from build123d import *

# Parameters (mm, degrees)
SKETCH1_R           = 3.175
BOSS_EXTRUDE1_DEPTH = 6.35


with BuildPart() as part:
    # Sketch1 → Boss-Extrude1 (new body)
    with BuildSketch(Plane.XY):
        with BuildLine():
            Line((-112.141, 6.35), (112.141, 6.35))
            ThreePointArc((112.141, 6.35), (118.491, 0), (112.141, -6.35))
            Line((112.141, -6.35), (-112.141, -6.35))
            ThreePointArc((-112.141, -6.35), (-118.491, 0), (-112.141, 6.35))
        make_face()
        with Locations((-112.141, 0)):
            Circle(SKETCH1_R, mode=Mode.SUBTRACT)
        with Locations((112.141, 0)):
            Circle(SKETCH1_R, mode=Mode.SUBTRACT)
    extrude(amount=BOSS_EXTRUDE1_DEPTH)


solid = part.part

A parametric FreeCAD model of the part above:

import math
import FreeCAD as App
import Part
import Sketcher
Q = App.Units.Quantity

doc = App.newDocument("Part")
body = doc.addObject("PartDesign::Body", "Body")

# Sketch on XY plane
sketch1 = body.newObject("Sketcher::SketchObject", "Sketch")
sketch1.AttachmentSupport = (doc.getObject("XY_Plane"), [""])
sketch1.MapMode = "FlatFace"
sketch1.addGeometry([
    Part.LineSegment(App.Vector(112.141, 6.35, 0), App.Vector(-112.141, 6.35, 0)),  # 0
    Part.ArcOfCircle(Part.Circle(App.Vector(-112.141, 0, 0), App.Vector(0, 0, 1), 6.35), math.radians(90), math.radians(270)),  # 1
    Part.LineSegment(App.Vector(-112.141, -6.35, 0), App.Vector(112.141, -6.35, 0)),  # 2
    Part.ArcOfCircle(Part.Circle(App.Vector(112.141, 0, 0), App.Vector(0, 0, 1), 6.35), math.radians(-90), math.radians(90)),  # 3
    Part.Circle(App.Vector(112.141, 0, 0), App.Vector(0, 0, 1), 3.175),  # 4
    Part.Circle(App.Vector(-112.141, 0, 0), App.Vector(0, 0, 1), 3.175),  # 5
], False)
sketch1.addConstraint([
    Sketcher.Constraint("Tangent", 0, 2, 1, 1),
    Sketcher.Constraint("Tangent", 1, 2, 2, 1),
    Sketcher.Constraint("Tangent", 2, 2, 3, 1),
    Sketcher.Constraint("Tangent", 3, 2, 0, 1),
    Sketcher.Constraint("Horizontal", 0),
    Sketcher.Constraint("Horizontal", 2),
    Sketcher.Constraint("Coincident", 4, 3, 3, 3),
    Sketcher.Constraint("Coincident", 5, 3, 1, 3),
    Sketcher.Constraint("Equal", 4, 5),
    Sketcher.Constraint("Symmetric", 1, 3, 3, 3, -1, 1),
    Sketcher.Constraint("Diameter", 4, Q("0.25 in")),
    Sketcher.Constraint("Radius", 1, Q("0.25 in")),
    Sketcher.Constraint("DistanceX", 0, 2, 0, 1, Q("8.83 in")),
])
pad1 = body.newObject("PartDesign::Pad", "Pad")
pad1.Profile = sketch1
pad1.Length = Q("0.25 in")

doc.recompute()
